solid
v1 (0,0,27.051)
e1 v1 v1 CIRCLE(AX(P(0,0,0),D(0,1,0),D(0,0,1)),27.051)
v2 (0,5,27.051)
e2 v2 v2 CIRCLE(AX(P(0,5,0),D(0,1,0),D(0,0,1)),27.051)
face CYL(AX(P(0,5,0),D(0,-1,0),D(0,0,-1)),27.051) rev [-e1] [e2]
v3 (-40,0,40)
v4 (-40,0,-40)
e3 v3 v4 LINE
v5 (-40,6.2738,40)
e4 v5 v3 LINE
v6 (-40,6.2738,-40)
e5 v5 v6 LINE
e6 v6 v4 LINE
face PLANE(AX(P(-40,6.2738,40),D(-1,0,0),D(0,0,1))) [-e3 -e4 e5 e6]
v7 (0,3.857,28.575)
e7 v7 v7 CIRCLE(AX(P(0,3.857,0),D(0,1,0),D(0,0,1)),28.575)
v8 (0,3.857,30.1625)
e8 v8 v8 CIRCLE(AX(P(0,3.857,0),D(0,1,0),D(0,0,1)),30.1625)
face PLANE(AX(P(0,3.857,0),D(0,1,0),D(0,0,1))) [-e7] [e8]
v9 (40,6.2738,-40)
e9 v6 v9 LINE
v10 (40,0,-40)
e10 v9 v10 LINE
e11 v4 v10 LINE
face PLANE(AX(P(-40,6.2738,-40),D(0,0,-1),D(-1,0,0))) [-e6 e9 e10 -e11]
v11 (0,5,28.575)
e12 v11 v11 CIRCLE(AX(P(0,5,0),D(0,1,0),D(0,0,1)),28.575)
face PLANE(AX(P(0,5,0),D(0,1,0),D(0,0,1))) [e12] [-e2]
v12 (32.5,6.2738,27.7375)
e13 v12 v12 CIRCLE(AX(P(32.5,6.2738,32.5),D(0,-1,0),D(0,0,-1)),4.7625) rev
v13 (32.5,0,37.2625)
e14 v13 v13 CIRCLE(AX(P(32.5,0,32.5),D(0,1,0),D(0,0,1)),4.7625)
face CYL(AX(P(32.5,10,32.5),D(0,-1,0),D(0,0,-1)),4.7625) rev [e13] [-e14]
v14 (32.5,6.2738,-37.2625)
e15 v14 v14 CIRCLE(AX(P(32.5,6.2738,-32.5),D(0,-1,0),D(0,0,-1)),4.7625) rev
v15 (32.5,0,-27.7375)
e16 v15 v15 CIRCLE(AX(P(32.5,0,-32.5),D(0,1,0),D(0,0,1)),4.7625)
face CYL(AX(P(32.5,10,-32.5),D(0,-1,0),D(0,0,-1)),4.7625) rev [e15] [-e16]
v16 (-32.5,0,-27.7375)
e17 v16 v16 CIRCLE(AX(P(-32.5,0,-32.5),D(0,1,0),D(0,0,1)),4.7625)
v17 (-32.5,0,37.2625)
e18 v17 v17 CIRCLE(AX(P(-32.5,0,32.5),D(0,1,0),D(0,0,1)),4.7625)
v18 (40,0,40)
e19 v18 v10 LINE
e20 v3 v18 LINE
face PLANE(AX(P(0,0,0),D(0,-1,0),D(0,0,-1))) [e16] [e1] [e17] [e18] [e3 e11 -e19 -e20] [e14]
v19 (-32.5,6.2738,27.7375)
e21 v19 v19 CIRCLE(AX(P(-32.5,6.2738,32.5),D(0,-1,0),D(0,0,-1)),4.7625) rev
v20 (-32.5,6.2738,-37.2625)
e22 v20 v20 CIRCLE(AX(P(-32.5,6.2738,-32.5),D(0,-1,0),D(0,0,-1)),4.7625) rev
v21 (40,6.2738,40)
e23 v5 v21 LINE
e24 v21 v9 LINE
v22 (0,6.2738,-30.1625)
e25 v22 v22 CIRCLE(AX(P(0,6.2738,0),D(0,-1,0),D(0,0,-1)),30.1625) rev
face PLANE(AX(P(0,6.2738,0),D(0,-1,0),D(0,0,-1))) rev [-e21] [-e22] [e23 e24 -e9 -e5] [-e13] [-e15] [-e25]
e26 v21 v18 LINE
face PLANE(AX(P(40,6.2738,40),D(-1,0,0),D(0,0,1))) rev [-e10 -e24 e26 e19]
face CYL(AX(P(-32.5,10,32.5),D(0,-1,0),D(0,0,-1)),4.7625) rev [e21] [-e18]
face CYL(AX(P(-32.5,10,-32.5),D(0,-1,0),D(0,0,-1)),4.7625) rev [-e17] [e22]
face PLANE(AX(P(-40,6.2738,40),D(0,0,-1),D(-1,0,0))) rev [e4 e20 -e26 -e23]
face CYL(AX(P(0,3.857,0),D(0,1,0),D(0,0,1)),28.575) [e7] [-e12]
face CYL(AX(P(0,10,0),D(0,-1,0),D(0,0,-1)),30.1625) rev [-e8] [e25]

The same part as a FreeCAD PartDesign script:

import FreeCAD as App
import Part
import Sketcher
Q = App.Units.Quantity


def add_polygon(sketch, points):
    """Adds a closed chain of lines whose ends are joined by coincident constraints."""
    first, n = sketch.GeometryCount, len(points)
    for a, b in zip(points, points[1:] + points[:1]):
        sketch.addGeometry(Part.LineSegment(App.Vector(*a, 0), App.Vector(*b, 0)), False)
    for i in range(n):
        sketch.addConstraint(Sketcher.Constraint("Coincident", first + i, 2, first + (i + 1) % n, 1))

doc = App.newDocument("Part")
body = doc.addObject("PartDesign::Body", "Body")

# Sketch on XZ plane
sketch1 = body.newObject("Sketcher::SketchObject", "Sketch")
sketch1.AttachmentSupport = (doc.getObject("XZ_Plane"), [""])
sketch1.MapMode = "FlatFace"
add_polygon(sketch1, [(-40, -40), (-40, 40), (40, 40), (40, -40)])  # lines 0-3
sketch1.addConstraint([
    Sketcher.Constraint("Vertical", 0),
    Sketcher.Constraint("Horizontal", 1),
    Sketcher.Constraint("Vertical", 2),
    Sketcher.Constraint("Horizontal", 3),
    Sketcher.Constraint("Symmetric", 0, 2, 2, 2, -1, 1),
    Sketcher.Constraint("Equal", 3, 0),
    Sketcher.Constraint("DistanceX", 1, 1, 1, 2, 80.0),
])
pad1 = body.newObject("PartDesign::Pad", "Pad")
pad1.Profile = sketch1
pad1.Length = Q("0.247 in")
pad1.Reversed = True

# Sketch on XZ plane
sketch2 = body.newObject("Sketcher::SketchObject", "Sketch001")
sketch2.AttachmentSupport = (doc.getObject("XZ_Plane"), [""])
sketch2.MapMode = "FlatFace"
sketch2.addGeometry([
    Part.Circle(App.Vector(-32.5, -32.5, 0), App.Vector(0, 0, 1), 4.7625),
    Part.Circle(App.Vector(32.5, -32.5, 0), App.Vector(0, 0, 1), 4.7625),
    Part.Circle(App.Vector(32.5, 32.5, 0), App.Vector(0, 0, 1), 4.7625),
    Part.Circle(App.Vector(-32.5, 32.5, 0), App.Vector(0, 0, 1), 4.7625),
], False)
sketch2.addConstraint([
    Sketcher.Constraint("Equal", 0, 1),
    Sketcher.Constraint("Equal", 1, 2),
    Sketcher.Constraint("Equal", 2, 3),
    Sketcher.Constraint("Symmetric", 0, 3, 2, 3, -1, 1),
    Sketcher.Constraint("Symmetric", 1, 3, 3, 3, -1, 1),
    Sketcher.Constraint("Symmetric", 0, 3, 1, 3, -2),
    Sketcher.Constraint("Diameter", 0, Q("0.375 in")),
    Sketcher.Constraint("DistanceX", 0, 3, -1, 1, 32.5),
    Sketcher.Constraint("DistanceY", 0, 3, -1, 1, 32.5),
])
pocket1 = body.newObject("PartDesign::Pocket", "Pocket")
pocket1.Profile = sketch2
pocket1.Length = 10

# Sketch on XZ plane
sketch3 = body.newObject("Sketcher::SketchObject", "Sketch002")
sketch3.AttachmentSupport = (doc.getObject("XZ_Plane"), [""])
sketch3.MapMode = "FlatFace"
sketch3.AttachmentOffset = App.Placement(App.Vector(0, 0, -5), App.Rotation())
sketch3.addGeometry(Part.Circle(App.Vector(0, 0, 0), App.Vector(0, 0, 1), 30.1625), False)
sketch3.addConstraint([
    Sketcher.Constraint("Coincident", 0, 3, -1, 1),
    Sketcher.Constraint("Diameter", 0, Q("2.375 in")),
])
pocket2 = body.newObject("PartDesign::Pocket", "Pocket001")
pocket2.Profile = sketch3
pocket2.Length = 5

# Sketch on XZ plane
sketch4 = body.newObject("Sketcher::SketchObject", "Sketch003")
sketch4.AttachmentSupport = (doc.getObject("XZ_Plane"), [""])
sketch4.MapMode = "FlatFace"
sketch4.addGeometry(Part.Circle(App.Vector(0, 0, 0), App.Vector(0, 0, 1), 27.051), False)
sketch4.addConstraint([
    Sketcher.Constraint("Coincident", 0, 3, -1, 1),
    Sketcher.Constraint("Diameter", 0, Q("2.13 in")),
])
pocket3 = body.newObject("PartDesign::Pocket", "Pocket002")
pocket3.Profile = sketch4
pocket3.Length = 5

# Sketch on XZ plane
sketch5 = body.newObject("Sketcher::SketchObject", "Sketch004")
sketch5.AttachmentSupport = (doc.getObject("XZ_Plane"), [""])
sketch5.MapMode = "FlatFace"
sketch5.AttachmentOffset = App.Placement(App.Vector(0, 0, -5), App.Rotation())
sketch5.addGeometry([
    Part.Circle(App.Vector(0, 0, 0), App.Vector(0, 0, 1), 30.1625),
    Part.Circle(App.Vector(0, 0, 0), App.Vector(0, 0, 1), 28.575),
], False)
sketch5.addConstraint([
    Sketcher.Constraint("Coincident", 0, 3, -1, 1),
    Sketcher.Constraint("Coincident", 1, 3, -1, 1),
    Sketcher.Constraint("Diameter", 1, Q("2.25 in")),
    Sketcher.Constraint("Diameter", 0, Q("2.375 in")),
])
pocket4 = body.newObject("PartDesign::Pocket", "Pocket003")
pocket4.Profile = sketch5
pocket4.Length = Q("0.045 in")
pocket4.Reversed = True

doc.recompute()
